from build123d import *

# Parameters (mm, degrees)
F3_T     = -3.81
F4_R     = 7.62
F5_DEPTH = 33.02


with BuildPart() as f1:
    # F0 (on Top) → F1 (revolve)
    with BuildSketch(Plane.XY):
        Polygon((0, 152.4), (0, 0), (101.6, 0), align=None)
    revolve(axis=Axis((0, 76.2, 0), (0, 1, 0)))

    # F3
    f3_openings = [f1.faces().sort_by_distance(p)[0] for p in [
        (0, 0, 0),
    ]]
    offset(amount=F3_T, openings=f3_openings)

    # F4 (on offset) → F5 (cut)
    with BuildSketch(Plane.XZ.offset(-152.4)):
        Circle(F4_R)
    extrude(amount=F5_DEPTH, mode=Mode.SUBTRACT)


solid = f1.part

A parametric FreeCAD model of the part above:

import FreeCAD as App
import Part
import Sketcher

V = App.Vector
Q = App.Units.Quantity


def faces_at(feature, points):
    """Names of the faces that lie closest to the given points."""
    faces = feature.Shape.Faces
    near = lambda p: min(range(len(faces)), key=lambda i: faces[i].distToShape(Part.Vertex(*p))[0])
    return sorted({f"Face{near(p) + 1}" for p in points})


def add_polygon(sketch, points):
    """Adds a closed chain of lines whose ends are joined by coincident constraints."""
    first, n = sketch.GeometryCount, len(points)
    for a, b in zip(points, points[1:] + points[:1]):
        sketch.addGeometry(Part.LineSegment(App.Vector(*a, 0), App.Vector(*b, 0)), False)
    for i in range(n):
        sketch.addConstraint(Sketcher.Constraint("Coincident", first + i, 2, first + (i + 1) % n, 1))

doc = App.newDocument("Part")
body = doc.addObject("PartDesign::Body", "Body")

# Sketch on XY plane
sketch1 = body.newObject("Sketcher::SketchObject", "Sketch")
sketch1.AttachmentSupport = (doc.getObject("XY_Plane"), [""])
sketch1.MapMode = "FlatFace"
add_polygon(sketch1, [(0, 152.4), (0, 0), (101.6, 0)])  # lines 0-2
sketch1.addConstraint(Sketcher.Constraint("Vertical", 0))
sketch1.addConstraint(Sketcher.Constraint("Horizontal", 1))
sketch1.addConstraint(Sketcher.Constraint("Coincident", 0, 2, -1, 1))
sketch1.addConstraint(Sketcher.Constraint("DistanceX", 1, 1, 1, 2, Q("4 in")))
sketch1.addConstraint(Sketcher.Constraint("DistanceY", 0, 2, 0, 1, Q("6 in")))
revolution = body.newObject("PartDesign::Revolution", "Revolution")
revolution.Profile = sketch1
revolution.ReferenceAxis = (sketch1, ["V_Axis"])
revolution.Angle = 360
doc.recompute()

thickness = body.newObject("PartDesign::Thickness", "Thickness")
thickness.Base = (revolution, faces_at(revolution, [(0, 0, 0)]))
thickness.Value = Q("0.15 in")
thickness.Reversed = True
thickness.Join = "Arc"

# Sketch on XZ plane
sketch2 = body.newObject("Sketcher::SketchObject", "Sketch001")
sketch2.AttachmentSupport = (doc.getObject("XZ_Plane"), [""])
sketch2.MapMode = "FlatFace"
sketch2.AttachmentOffset = App.Placement(V(0, 0, -6 * 25.4), App.Rotation())
sketch2.addGeometry(Part.Circle(V(0, 0, 0), V(0, 0, 1), 7.62), False)
sketch2.addConstraint(Sketcher.Constraint("Coincident", 0, 3, -1, 1))
sketch2.addConstraint(Sketcher.Constraint("Diameter", 0, Q("0.6 in")))
pocket1 = body.newObject("PartDesign::Pocket", "Pocket")
pocket1.Profile = sketch2
pocket1.Length = Q("1.3 in")
pocket1.Reversed = True

doc.recompute()
